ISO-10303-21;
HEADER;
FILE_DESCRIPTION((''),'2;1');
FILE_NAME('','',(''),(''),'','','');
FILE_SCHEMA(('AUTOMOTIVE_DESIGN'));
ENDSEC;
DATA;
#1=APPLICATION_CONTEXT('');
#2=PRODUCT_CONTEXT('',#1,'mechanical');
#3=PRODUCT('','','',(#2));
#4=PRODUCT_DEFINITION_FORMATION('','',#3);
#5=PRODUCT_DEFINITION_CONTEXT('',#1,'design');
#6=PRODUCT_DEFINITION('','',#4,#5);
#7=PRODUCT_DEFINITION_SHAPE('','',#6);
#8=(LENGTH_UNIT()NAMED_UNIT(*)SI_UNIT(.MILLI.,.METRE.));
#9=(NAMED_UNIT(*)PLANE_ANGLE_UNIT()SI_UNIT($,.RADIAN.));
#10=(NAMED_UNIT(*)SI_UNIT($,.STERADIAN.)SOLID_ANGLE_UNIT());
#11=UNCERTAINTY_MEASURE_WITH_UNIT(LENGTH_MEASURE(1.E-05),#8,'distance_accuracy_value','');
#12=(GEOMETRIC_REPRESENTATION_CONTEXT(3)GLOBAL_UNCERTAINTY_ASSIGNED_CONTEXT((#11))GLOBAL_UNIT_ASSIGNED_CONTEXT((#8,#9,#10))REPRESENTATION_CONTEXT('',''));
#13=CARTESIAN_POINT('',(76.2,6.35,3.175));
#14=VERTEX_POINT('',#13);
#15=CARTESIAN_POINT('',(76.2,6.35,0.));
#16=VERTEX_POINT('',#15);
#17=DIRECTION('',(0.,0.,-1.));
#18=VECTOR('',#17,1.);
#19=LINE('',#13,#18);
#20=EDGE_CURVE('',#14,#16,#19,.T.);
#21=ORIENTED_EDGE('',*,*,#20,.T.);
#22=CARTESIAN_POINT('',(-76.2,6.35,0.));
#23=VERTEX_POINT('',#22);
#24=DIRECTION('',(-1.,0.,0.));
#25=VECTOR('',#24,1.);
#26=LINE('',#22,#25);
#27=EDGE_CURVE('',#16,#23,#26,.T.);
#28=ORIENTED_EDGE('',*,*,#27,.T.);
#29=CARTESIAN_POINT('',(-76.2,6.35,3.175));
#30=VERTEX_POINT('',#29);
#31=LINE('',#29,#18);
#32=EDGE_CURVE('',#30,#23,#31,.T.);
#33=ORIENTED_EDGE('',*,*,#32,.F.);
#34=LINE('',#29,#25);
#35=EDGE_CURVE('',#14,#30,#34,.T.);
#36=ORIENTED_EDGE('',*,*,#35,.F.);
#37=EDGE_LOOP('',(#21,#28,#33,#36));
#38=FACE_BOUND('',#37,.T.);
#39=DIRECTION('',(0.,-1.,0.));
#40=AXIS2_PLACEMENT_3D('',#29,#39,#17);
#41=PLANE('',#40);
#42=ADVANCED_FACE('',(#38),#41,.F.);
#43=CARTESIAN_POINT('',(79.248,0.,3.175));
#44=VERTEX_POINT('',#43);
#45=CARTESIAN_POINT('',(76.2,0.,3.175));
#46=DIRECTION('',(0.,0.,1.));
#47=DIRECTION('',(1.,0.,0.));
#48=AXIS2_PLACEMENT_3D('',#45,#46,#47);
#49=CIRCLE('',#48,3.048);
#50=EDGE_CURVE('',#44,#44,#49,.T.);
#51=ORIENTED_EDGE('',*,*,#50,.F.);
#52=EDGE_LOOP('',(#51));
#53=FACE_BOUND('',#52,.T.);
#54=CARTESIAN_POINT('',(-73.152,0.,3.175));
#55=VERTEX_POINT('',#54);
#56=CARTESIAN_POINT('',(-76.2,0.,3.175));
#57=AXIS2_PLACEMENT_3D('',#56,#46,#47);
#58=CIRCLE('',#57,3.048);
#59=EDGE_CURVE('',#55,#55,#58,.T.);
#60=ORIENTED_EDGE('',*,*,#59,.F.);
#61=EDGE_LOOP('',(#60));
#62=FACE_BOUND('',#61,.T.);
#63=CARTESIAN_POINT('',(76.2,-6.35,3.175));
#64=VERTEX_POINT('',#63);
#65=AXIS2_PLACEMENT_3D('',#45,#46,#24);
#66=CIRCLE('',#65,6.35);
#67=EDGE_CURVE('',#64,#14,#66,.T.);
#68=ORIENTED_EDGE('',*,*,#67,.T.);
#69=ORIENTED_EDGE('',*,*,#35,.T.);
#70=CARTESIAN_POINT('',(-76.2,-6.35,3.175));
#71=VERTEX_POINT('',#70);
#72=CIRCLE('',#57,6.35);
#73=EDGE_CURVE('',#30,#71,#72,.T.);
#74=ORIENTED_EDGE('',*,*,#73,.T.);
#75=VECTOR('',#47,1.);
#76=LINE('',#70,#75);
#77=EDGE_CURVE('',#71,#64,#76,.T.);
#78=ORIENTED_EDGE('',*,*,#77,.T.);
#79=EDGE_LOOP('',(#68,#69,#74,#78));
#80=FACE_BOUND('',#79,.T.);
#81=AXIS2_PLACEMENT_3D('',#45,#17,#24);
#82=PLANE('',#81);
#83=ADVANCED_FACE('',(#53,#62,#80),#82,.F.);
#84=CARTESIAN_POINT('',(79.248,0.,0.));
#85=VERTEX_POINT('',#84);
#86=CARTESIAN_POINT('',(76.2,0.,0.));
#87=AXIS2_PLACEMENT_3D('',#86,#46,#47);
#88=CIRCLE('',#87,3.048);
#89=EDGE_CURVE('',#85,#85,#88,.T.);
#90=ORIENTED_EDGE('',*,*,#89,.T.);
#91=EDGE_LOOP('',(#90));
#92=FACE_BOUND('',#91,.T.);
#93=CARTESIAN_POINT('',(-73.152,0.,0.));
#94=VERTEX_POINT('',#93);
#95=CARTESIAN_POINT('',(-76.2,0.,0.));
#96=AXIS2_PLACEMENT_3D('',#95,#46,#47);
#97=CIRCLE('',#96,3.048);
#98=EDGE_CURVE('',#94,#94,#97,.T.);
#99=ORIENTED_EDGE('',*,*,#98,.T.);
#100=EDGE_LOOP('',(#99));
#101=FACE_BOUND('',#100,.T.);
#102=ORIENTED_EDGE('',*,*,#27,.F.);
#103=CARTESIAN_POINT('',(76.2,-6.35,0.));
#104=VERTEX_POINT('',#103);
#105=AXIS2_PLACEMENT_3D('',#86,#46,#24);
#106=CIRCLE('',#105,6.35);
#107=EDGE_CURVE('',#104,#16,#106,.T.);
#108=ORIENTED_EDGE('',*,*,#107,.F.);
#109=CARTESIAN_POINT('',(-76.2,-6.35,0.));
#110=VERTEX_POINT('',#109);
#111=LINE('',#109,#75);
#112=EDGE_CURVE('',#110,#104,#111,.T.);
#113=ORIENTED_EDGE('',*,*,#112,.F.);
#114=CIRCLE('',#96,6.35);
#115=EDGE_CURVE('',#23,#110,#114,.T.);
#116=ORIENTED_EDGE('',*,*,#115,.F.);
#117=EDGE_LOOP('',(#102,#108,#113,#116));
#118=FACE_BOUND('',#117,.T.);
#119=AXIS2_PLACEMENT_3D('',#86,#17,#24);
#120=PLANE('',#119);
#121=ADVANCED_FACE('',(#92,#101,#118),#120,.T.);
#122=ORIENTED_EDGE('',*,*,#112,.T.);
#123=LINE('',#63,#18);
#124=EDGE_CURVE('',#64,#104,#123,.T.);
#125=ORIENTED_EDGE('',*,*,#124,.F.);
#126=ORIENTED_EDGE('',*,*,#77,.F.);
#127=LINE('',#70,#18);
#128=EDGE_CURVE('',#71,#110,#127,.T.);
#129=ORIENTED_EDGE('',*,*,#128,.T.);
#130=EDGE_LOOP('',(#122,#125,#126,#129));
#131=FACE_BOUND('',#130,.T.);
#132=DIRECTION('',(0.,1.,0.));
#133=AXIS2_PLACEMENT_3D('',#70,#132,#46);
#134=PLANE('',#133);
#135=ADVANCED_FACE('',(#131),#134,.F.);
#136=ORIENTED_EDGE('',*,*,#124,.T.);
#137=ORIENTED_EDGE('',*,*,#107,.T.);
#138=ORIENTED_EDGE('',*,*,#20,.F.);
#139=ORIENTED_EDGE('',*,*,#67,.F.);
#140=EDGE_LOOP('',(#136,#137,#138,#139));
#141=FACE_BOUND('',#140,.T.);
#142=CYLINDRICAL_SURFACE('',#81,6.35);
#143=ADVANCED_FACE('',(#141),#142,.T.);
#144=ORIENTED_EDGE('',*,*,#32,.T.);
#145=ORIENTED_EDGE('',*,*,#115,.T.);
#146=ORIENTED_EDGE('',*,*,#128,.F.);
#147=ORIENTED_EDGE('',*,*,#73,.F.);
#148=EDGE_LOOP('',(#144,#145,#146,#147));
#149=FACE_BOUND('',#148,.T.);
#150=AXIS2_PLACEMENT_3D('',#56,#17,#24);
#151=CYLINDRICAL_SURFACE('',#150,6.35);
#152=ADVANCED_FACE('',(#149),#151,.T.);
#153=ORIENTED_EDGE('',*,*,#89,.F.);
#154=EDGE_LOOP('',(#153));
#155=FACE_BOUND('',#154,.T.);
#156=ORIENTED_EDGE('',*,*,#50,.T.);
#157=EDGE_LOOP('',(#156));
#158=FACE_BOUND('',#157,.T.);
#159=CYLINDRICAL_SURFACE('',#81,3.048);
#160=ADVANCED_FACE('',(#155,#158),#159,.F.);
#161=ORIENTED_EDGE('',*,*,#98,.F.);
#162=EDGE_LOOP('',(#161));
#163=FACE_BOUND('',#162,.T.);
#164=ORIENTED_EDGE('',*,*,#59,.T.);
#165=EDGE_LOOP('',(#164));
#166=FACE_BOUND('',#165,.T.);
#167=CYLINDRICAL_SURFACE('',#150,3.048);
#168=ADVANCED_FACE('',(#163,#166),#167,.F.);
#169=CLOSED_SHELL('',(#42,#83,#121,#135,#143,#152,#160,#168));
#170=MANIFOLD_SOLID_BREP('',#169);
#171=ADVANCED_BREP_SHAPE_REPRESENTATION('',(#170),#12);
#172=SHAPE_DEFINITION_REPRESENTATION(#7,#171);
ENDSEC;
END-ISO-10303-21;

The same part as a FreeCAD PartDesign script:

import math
import FreeCAD as App
import Part
import Sketcher

V = App.Vector
Q = App.Units.Quantity

doc = App.newDocument("Part")
body = doc.addObject("PartDesign::Body", "Body")

# Sketch on XY plane
sketch1 = body.newObject("Sketcher::SketchObject", "Sketch")
sketch1.AttachmentSupport = (doc.getObject("XY_Plane"), [""])
sketch1.MapMode = "FlatFace"
sketch1.addGeometry(Part.LineSegment(V(-76.2, -6.3, 0), V(76.2, -6.3, 0)), False)
sketch1.addGeometry(Part.ArcOfCircle(Part.Circle(V(76.2, 0, 0), V(0, 0, 1), 6.3), math.radians(-90), math.radians(90)), False)
sketch1.addGeometry(Part.LineSegment(V(76.2, 6.3, 0), V(-76.2, 6.3, 0)), False)
sketch1.addGeometry(Part.ArcOfCircle(Part.Circle(V(-76.2, 0, 0), V(0, 0, 1), 6.3), math.radians(90), math.radians(270)), False)
sketch1.addGeometry(Part.Circle(V(-76.2, 0, 0), V(0, 0, 1), 3), False)
sketch1.addGeometry(Part.Circle(V(76.2, 0, 0), V(0, 0, 1), 3), False)
sketch1.addConstraint(Sketcher.Constraint("Tangent", 0, 2, 1, 1))
sketch1.addConstraint(Sketcher.Constraint("Tangent", 1, 2, 2, 1))
sketch1.addConstraint(Sketcher.Constraint("Tangent", 2, 2, 3, 1))
sketch1.addConstraint(Sketcher.Constraint("Tangent", 3, 2, 0, 1))
sketch1.addConstraint(Sketcher.Constraint("Horizontal", 0))
sketch1.addConstraint(Sketcher.Constraint("Horizontal", 2))
sketch1.addConstraint(Sketcher.Constraint("Coincident", 4, 3, 3, 3))
sketch1.addConstraint(Sketcher.Constraint("Coincident", 5, 3, 1, 3))
sketch1.addConstraint(Sketcher.Constraint("Equal", 4, 5))
sketch1.addConstraint(Sketcher.Constraint("Symmetric", 1, 3, 3, 3, -1, 1))
sketch1.addConstraint(Sketcher.Constraint("Diameter", 4, Q("0.24 in")))
sketch1.addConstraint(Sketcher.Constraint("DistanceX", 0, 1, 0, 2, Q("6 in")))
sketch1.addConstraint(Sketcher.Constraint("Radius", 1, Q("0.25 in")))
pad1 = body.newObject("PartDesign::Pad", "Pad")
pad1.Profile = sketch1
pad1.Length = Q("0.125 in")

doc.recompute()
